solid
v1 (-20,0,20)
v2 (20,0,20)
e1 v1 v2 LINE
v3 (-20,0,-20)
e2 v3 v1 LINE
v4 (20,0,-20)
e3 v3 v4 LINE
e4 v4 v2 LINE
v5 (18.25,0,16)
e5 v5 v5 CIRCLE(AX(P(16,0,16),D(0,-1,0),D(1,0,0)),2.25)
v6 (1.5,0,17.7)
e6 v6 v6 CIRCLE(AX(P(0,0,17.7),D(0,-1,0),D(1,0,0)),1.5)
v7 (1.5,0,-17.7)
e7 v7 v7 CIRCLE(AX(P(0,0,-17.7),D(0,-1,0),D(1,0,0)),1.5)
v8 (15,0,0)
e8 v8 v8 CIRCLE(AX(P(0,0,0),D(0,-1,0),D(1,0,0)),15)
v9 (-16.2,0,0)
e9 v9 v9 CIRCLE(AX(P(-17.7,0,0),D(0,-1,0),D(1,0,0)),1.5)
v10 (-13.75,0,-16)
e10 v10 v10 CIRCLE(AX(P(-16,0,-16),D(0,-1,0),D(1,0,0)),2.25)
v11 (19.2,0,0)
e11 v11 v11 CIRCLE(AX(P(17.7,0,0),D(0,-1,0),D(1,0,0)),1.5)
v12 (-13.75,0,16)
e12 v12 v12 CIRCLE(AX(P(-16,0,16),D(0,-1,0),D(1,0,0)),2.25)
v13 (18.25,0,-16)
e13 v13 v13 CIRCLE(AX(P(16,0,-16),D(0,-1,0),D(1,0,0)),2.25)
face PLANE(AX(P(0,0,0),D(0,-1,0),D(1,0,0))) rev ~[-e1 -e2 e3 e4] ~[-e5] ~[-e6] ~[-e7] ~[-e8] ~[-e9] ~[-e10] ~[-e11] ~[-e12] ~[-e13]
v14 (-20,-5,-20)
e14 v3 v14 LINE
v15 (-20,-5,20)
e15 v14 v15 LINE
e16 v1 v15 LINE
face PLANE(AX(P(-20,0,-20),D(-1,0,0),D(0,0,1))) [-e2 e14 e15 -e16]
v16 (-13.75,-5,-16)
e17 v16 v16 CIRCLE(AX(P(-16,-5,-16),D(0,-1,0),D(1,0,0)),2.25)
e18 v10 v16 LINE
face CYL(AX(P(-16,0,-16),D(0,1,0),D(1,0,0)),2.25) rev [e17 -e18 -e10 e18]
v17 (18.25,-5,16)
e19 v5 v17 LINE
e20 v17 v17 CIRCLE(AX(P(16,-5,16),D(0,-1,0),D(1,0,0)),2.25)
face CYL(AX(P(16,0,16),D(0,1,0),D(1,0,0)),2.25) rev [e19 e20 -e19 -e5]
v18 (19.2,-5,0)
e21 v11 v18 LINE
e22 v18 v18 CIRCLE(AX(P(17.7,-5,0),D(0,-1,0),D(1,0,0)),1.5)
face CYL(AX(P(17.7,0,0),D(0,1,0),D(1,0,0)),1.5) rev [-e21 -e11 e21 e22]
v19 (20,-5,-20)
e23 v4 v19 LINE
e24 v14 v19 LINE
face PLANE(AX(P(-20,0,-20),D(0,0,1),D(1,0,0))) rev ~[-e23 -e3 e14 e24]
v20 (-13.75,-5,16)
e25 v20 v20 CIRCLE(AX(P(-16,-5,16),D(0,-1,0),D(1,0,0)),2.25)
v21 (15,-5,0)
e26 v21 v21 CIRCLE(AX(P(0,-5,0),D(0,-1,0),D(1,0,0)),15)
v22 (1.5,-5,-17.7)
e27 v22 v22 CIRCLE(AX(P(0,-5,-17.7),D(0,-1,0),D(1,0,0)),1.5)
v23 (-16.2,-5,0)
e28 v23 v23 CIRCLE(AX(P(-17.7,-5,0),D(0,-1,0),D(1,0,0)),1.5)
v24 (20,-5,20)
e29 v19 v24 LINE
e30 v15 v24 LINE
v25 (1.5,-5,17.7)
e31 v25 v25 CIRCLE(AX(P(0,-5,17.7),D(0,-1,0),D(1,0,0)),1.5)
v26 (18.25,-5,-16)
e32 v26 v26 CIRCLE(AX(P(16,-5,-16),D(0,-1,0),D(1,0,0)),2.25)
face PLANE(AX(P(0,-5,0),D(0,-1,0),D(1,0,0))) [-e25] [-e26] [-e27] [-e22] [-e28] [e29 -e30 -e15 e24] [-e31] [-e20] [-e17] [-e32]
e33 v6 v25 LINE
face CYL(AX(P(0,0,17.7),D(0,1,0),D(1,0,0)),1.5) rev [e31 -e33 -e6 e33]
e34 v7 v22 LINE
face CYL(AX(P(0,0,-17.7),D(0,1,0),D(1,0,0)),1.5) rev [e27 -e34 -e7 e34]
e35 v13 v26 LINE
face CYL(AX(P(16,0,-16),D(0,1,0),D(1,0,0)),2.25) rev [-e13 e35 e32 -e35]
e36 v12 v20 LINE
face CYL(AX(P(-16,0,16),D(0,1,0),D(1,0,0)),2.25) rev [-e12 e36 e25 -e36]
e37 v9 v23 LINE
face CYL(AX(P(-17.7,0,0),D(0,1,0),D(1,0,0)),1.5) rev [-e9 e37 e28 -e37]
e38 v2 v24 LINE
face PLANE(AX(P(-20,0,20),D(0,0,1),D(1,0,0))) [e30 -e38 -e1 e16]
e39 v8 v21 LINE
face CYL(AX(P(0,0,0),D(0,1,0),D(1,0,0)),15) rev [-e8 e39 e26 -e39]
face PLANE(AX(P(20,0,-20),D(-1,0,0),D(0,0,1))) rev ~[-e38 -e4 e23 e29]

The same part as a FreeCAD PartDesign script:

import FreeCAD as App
import Part
import Sketcher
from FreeCAD import Vector
Q = App.Units.Quantity


def add_polygon(sketch, points):
    """Adds a closed chain of lines whose ends are joined by coincident constraints."""
    first, n = sketch.GeometryCount, len(points)
    for a, b in zip(points, points[1:] + points[:1]):
        sketch.addGeometry(Part.LineSegment(App.Vector(*a, 0), App.Vector(*b, 0)), False)
    for i in range(n):
        sketch.addConstraint(Sketcher.Constraint("Coincident", first + i, 2, first + (i + 1) % n, 1))

doc = App.newDocument("Part")
params = doc.addObject("Spreadsheet::Sheet", "Params")
for row, (alias, value) in enumerate([
    ("sketch1_diameter", "3 mm"),
    ("sketch1_diameter2", "30 mm"),
    ("sketch1_diameter3", "4.5 mm"),
    ("sketch1_width", "40 mm"),
    ("pad1_length", "5 mm"),
], start=1):
    params.set(f"A{row}", alias)
    params.set(f"B{row}", "=" + value)
    params.setAlias(f"B{row}", alias)

body = doc.addObject("PartDesign::Body", "Body")

# Sketch on XZ plane
sketch1 = doc.addObject("Sketcher::SketchObject", "Sketch")
body.addObject(sketch1)
sketch1.AttachmentSupport = (doc.XZ_Plane, [""])
sketch1.MapMode = "FlatFace"
add_polygon(sketch1, [(-20, 20), (-20, -20), (20, -20), (20, 20)])  # lines 0-3
sketch1.addGeometry(Part.Circle(Vector(-16, -16, 0), Vector(0, 0, 1), 2.25), False)  # 4
sketch1.addGeometry(Part.Circle(Vector(0, -17.7, 0), Vector(0, 0, 1), 1.5), False)  # 5
sketch1.addGeometry(Part.Circle(Vector(16, -16, 0), Vector(0, 0, 1), 2.25), False)  # 6
sketch1.addGeometry(Part.Circle(Vector(-17.7, 0, 0), Vector(0, 0, 1), 1.5), False)  # 7
sketch1.addGeometry(Part.Circle(Vector(-16, 16, 0), Vector(0, 0, 1), 2.25), False)  # 8
sketch1.addGeometry(Part.Circle(Vector(0, 0, 0), Vector(0, 0, 1), 15), False)  # 9
sketch1.addGeometry(Part.Circle(Vector(17.7, 0, 0), Vector(0, 0, 1), 1.5), False)  # 10
sketch1.addGeometry(Part.Circle(Vector(0, 17.7, 0), Vector(0, 0, 1), 1.5), False)  # 11
sketch1.addGeometry(Part.Circle(Vector(16, 16, 0), Vector(0, 0, 1), 2.25), False)  # 12
sketch1.addConstraint(Sketcher.Constraint("Vertical", 0))
sketch1.addConstraint(Sketcher.Constraint("Horizontal", 1))
sketch1.addConstraint(Sketcher.Constraint("Vertical", 2))
sketch1.addConstraint(Sketcher.Constraint("Horizontal", 3))
sketch1.addConstraint(Sketcher.Constraint("Coincident", 9, 3, -1, 1))
sketch1.addConstraint(Sketcher.Constraint("Equal", 4, 6))
sketch1.addConstraint(Sketcher.Constraint("Equal", 5, 7))
sketch1.addConstraint(Sketcher.Constraint("Equal", 6, 8))
sketch1.addConstraint(Sketcher.Constraint("Equal", 7, 10))
sketch1.addConstraint(Sketcher.Constraint("Equal", 10, 11))
sketch1.addConstraint(Sketcher.Constraint("Equal", 8, 12))
sketch1.addConstraint(Sketcher.Constraint("Symmetric", 6, 3, 8, 3, -1, 1))
sketch1.addConstraint(Sketcher.Constraint("Symmetric", 7, 3, 10, 3, -1, 1))
sketch1.addConstraint(Sketcher.Constraint("Symmetric", 5, 3, 11, 3, -1, 1))
sketch1.addConstraint(Sketcher.Constraint("Symmetric", 4, 3, 12, 3, -1, 1))
sketch1.addConstraint(Sketcher.Constraint("Symmetric", 0, 2, 2, 2, -1, 1))
sketch1.addConstraint(Sketcher.Constraint("Symmetric", 4, 3, 6, 3, -2))
sketch1.addConstraint(Sketcher.Constraint("PointOnObject", 5, 3, -2))
sketch1.addConstraint(Sketcher.Constraint("PointOnObject", 7, 3, -1))
sketch1.addConstraint(Sketcher.Constraint("Equal", 3, 0))
sketch1.addConstraint(Sketcher.Constraint("Diameter", 5, Q("3 mm")))
sketch1.addConstraint(Sketcher.Constraint("Diameter", 9, Q("30 mm")))
sketch1.addConstraint(Sketcher.Constraint("Diameter", 4, Q("4.5 mm")))
sketch1.addConstraint(Sketcher.Constraint("DistanceX", 1, 1, 1, 2, Q("40 mm")))
sketch1.addConstraint(Sketcher.Constraint("DistanceX", 4, 3, -1, 1, Q("16 mm")))
sketch1.addConstraint(Sketcher.Constraint("DistanceY", 4, 3, -1, 1, Q("16 mm")))
sketch1.addConstraint(Sketcher.Constraint("DistanceY", 5, 3, -1, 1, Q("17.7 mm")))
sketch1.addConstraint(Sketcher.Constraint("DistanceX", 7, 3, -1, 1, Q("17.7 mm")))
sketch1.setExpression("Constraints[24]", "Params.sketch1_diameter")
sketch1.setExpression("Constraints[25]", "Params.sketch1_diameter2")
sketch1.setExpression("Constraints[26]", "Params.sketch1_diameter3")
sketch1.setExpression("Constraints[27]", "Params.sketch1_width")
pad1 = doc.addObject("PartDesign::Pad", "Pad")
body.addObject(pad1)
pad1.Profile = sketch1
pad1.setExpression("Length", "Params.pad1_length")

doc.recompute()
